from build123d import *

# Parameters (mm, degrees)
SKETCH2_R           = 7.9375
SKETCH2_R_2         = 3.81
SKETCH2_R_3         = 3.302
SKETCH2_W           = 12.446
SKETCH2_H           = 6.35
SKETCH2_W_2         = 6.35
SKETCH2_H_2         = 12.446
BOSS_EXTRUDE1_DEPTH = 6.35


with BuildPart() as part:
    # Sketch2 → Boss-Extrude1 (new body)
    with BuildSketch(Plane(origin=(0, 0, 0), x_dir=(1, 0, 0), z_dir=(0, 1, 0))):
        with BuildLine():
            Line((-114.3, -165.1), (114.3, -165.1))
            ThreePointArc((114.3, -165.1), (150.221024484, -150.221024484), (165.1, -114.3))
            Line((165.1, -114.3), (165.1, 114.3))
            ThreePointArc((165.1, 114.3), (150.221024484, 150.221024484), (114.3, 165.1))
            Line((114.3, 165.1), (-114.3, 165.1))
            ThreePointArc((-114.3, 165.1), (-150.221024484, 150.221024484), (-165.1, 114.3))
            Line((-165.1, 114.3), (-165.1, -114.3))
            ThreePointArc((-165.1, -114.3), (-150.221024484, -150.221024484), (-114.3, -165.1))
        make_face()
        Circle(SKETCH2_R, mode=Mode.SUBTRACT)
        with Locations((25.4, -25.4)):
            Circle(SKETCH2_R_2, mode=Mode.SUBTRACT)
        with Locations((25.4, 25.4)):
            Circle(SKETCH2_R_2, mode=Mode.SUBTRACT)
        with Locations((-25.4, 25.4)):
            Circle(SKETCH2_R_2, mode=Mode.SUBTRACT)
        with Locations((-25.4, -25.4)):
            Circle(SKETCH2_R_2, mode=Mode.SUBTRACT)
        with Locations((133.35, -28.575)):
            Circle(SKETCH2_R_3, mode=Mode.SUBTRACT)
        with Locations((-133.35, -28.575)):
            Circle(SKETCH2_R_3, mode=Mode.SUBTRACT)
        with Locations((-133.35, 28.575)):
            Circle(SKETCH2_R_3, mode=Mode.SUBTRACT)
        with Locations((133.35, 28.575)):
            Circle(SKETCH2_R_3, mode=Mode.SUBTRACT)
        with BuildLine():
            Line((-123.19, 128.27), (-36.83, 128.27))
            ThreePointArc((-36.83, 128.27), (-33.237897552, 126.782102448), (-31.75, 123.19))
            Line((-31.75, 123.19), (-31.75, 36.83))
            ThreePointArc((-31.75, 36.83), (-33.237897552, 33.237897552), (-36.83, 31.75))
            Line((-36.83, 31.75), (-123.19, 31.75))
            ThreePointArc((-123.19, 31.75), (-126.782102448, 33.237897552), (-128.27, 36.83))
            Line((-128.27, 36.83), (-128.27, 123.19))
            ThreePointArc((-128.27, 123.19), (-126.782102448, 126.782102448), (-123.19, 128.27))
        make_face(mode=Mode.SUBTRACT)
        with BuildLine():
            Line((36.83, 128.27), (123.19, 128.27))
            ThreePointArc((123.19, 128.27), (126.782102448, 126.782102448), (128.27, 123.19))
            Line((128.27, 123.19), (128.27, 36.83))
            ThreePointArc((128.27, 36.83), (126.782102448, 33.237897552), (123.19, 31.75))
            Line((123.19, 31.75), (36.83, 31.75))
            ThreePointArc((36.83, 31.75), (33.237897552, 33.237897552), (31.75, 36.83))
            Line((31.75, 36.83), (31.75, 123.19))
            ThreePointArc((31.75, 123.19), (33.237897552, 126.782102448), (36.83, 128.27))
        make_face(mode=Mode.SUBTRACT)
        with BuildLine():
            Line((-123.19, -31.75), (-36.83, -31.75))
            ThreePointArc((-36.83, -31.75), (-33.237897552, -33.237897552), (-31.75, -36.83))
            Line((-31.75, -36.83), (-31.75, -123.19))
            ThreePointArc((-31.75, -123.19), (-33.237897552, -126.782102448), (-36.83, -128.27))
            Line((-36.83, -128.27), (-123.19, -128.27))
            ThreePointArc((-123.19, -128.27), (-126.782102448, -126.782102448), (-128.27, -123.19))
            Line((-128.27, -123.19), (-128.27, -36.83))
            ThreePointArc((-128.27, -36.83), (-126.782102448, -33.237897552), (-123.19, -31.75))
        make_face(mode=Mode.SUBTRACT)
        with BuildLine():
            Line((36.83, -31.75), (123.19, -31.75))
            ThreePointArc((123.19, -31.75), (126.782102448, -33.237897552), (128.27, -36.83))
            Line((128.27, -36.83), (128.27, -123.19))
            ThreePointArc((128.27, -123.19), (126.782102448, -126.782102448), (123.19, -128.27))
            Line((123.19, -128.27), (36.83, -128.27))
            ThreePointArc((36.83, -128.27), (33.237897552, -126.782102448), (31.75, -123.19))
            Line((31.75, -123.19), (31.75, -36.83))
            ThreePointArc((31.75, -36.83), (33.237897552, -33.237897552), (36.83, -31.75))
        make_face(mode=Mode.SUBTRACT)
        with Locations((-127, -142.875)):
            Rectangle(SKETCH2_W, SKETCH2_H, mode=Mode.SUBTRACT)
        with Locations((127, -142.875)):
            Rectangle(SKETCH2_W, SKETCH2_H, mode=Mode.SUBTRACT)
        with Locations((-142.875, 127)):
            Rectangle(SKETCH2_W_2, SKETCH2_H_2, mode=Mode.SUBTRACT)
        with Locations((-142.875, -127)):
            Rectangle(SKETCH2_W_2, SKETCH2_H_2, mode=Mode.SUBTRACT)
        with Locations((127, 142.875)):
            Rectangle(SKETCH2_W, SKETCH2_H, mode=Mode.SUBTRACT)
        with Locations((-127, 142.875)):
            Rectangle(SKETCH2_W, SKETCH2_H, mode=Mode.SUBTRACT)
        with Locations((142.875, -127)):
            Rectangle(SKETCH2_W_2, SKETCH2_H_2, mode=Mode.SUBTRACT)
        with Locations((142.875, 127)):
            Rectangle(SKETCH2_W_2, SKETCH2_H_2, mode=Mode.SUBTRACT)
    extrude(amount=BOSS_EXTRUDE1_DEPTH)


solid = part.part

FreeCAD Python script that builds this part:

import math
import FreeCAD as App
import Part
import Sketcher
Q = App.Units.Quantity

doc = App.newDocument("Part")
body = doc.addObject("PartDesign::Body", "Body")

# Sketch on XZ plane
sketch1 = doc.addObject("Sketcher::SketchObject", "Sketch")
body.addObject(sketch1)
sketch1.AttachmentSupport = (doc.XZ_Plane, [""])
sketch1.MapMode = "FlatFace"
sketch1.addGeometry(Part.LineSegment(App.Vector(-114.3, 165.1, 0), App.Vector(114.3, 165.1, 0)), False)
sketch1.addGeometry(Part.ArcOfCircle(Part.Circle(App.Vector(114.3, 114.3, 0), App.Vector(0, 0, 1), 50.8), math.radians(0), math.radians(90)), False)
sketch1.addGeometry(Part.LineSegment(App.Vector(165.1, 114.3, 0), App.Vector(165.1, -114.3, 0)), False)
sketch1.addGeometry(Part.ArcOfCircle(Part.Circle(App.Vector(114.3, -114.3, 0), App.Vector(0, 0, 1), 50.8), math.radians(-90), math.radians(0)), False)
sketch1.addGeometry(Part.LineSegment(App.Vector(114.3, -165.1, 0), App.Vector(-114.3, -165.1, 0)), False)
sketch1.addGeometry(Part.ArcOfCircle(Part.Circle(App.Vector(-114.3, -114.3, 0), App.Vector(0, 0, 1), 50.8), math.radians(-180), math.radians(-90)), False)
sketch1.addGeometry(Part.LineSegment(App.Vector(-165.1, -114.3, 0), App.Vector(-165.1, 114.3, 0)), False)
sketch1.addGeometry(Part.ArcOfCircle(Part.Circle(App.Vector(-114.3, 114.3, 0), App.Vector(0, 0, 1), 50.8), math.radians(90), math.radians(180)), False)
sketch1.addGeometry(Part.LineSegment(App.Vector(-120.8, 146.1, 0), App.Vector(-133.2, 146.1, 0)), False)
sketch1.addGeometry(Part.LineSegment(App.Vector(-133.2, 146.1, 0), App.Vector(-133.2, 139.7, 0)), False)
sketch1.addGeometry(Part.LineSegment(App.Vector(-133.2, 139.7, 0), App.Vector(-120.8, 139.7, 0)), False)
sketch1.addGeometry(Part.LineSegment(App.Vector(-120.8, 139.7, 0), App.Vector(-120.8, 146.1, 0)), False)
sketch1.addGeometry(Part.LineSegment(App.Vector(-139.7, 133.2, 0), App.Vector(-146.1, 133.2, 0)), False)
sketch1.addGeometry(Part.LineSegment(App.Vector(-146.1, 133.2, 0), App.Vector(-146.1, 120.8, 0)), False)
sketch1.addGeometry(Part.LineSegment(App.Vector(-146.1, 120.8, 0), App.Vector(-139.7, 120.8, 0)), False)
sketch1.addGeometry(Part.LineSegment(App.Vector(-139.7, 120.8, 0), App.Vector(-139.7, 133.2, 0)), False)
sketch1.addGeometry(Part.ArcOfCircle(Part.Circle(App.Vector(-123.2, 36.8, 0), App.Vector(0, 0, 1), 5.1), math.radians(-180), math.radians(-90)), False)
sketch1.addGeometry(Part.LineSegment(App.Vector(-123.2, 31.8, 0), App.Vector(-36.8, 31.8, 0)), False)
sketch1.addGeometry(Part.ArcOfCircle(Part.Circle(App.Vector(-36.8, 36.8, 0), App.Vector(0, 0, 1), 5.1), math.radians(-90), math.radians(0)), False)
sketch1.addGeometry(Part.LineSegment(App.Vector(-31.8, 36.8, 0), App.Vector(-31.8, 123.2, 0)), False)
sketch1.addGeometry(Part.ArcOfCircle(Part.Circle(App.Vector(-36.8, 123.2, 0), App.Vector(0, 0, 1), 5.1), math.radians(0), math.radians(90)), False)
sketch1.addGeometry(Part.LineSegment(App.Vector(-36.8, 128.3, 0), App.Vector(-123.2, 128.3, 0)), False)
sketch1.addGeometry(Part.ArcOfCircle(Part.Circle(App.Vector(-123.2, 123.2, 0), App.Vector(0, 0, 1), 5.1), math.radians(90), math.radians(180)), False)
sketch1.addGeometry(Part.LineSegment(App.Vector(-128.3, 123.2, 0), App.Vector(-128.3, 36.8, 0)), False)
sketch1.addGeometry(Part.Circle(App.Vector(-133.3, 28.6, 0), App.Vector(0, 0, 1), 3.3), False)
sketch1.addGeometry(Part.Circle(App.Vector(-25.4, 25.4, 0), App.Vector(0, 0, 1), 3.8), False)
sketch1.addGeometry(Part.LineSegment(App.Vector(133.2, 146.1, 0), App.Vector(120.8, 146.1, 0)), False)
sketch1.addGeometry(Part.LineSegment(App.Vector(120.8, 146.1, 0), App.Vector(120.8, 139.7, 0)), False)
sketch1.addGeometry(Part.LineSegment(App.Vector(120.8, 139.7, 0), App.Vector(133.2, 139.7, 0)), False)
sketch1.addGeometry(Part.LineSegment(App.Vector(133.2, 139.7, 0), App.Vector(133.2, 146.1, 0)), False)
sketch1.addGeometry(Part.LineSegment(App.Vector(146.1, 133.2, 0), App.Vector(139.7, 133.2, 0)), False)
sketch1.addGeometry(Part.LineSegment(App.Vector(139.7, 133.2, 0), App.Vector(139.7, 120.8, 0)), False)
sketch1.addGeometry(Part.LineSegment(App.Vector(139.7, 120.8, 0), App.Vector(146.1, 120.8, 0)), False)
sketch1.addGeometry(Part.LineSegment(App.Vector(146.1, 120.8, 0), App.Vector(146.1, 133.2, 0)), False)
sketch1.addGeometry(Part.ArcOfCircle(Part.Circle(App.Vector(36.8, 36.8, 0), App.Vector(0, 0, 1), 5.1), math.radians(-180), math.radians(-90)), False)
sketch1.addGeometry(Part.LineSegment(App.Vector(36.8, 31.8, 0), App.Vector(123.2, 31.8, 0)), False)
sketch1.addGeometry(Part.ArcOfCircle(Part.Circle(App.Vector(123.2, 36.8, 0), App.Vector(0, 0, 1), 5.1), math.radians(-90), math.radians(0)), False)
sketch1.addGeometry(Part.LineSegment(App.Vector(128.3, 36.8, 0), App.Vector(128.3, 123.2, 0)), False)
sketch1.addGeometry(Part.ArcOfCircle(Part.Circle(App.Vector(123.2, 123.2, 0), App.Vector(0, 0, 1), 5.1), math.radians(0), math.radians(90)), False)
sketch1.addGeometry(Part.LineSegment(App.Vector(123.2, 128.3, 0), App.Vector(36.8, 128.3, 0)), False)
sketch1.addGeometry(Part.ArcOfCircle(Part.Circle(App.Vector(36.8, 123.2, 0), App.Vector(0, 0, 1), 5.1), math.radians(90), math.radians(180)), False)
sketch1.addGeometry(Part.LineSegment(App.Vector(31.8, 123.2, 0), App.Vector(31.8, 36.8, 0)), False)
sketch1.addGeometry(Part.Circle(App.Vector(25.4, 25.4, 0), App.Vector(0, 0, 1), 3.8), False)
sketch1.addGeometry(Part.Circle(App.Vector(133.3, 28.6, 0), App.Vector(0, 0, 1), 3.3), False)
sketch1.addGeometry(Part.Circle(App.Vector(-133.3, -28.6, 0), App.Vector(0, 0, 1), 3.3), False)
sketch1.addGeometry(Part.Circle(App.Vector(-25.4, -25.4, 0), App.Vector(0, 0, 1), 3.8), False)
sketch1.addGeometry(Part.ArcOfCircle(Part.Circle(App.Vector(-123.2, -123.2, 0), App.Vector(0, 0, 1), 5.1), math.radians(-180), math.radians(-90)), False)
sketch1.addGeometry(Part.LineSegment(App.Vector(-123.2, -128.3, 0), App.Vector(-36.8, -128.3, 0)), False)
sketch1.addGeometry(Part.ArcOfCircle(Part.Circle(App.Vector(-36.8, -123.2, 0), App.Vector(0, 0, 1), 5.1), math.radians(-90), math.radians(0)), False)
sketch1.addGeometry(Part.LineSegment(App.Vector(-31.8, -123.2, 0), App.Vector(-31.8, -36.8, 0)), False)
sketch1.addGeometry(Part.ArcOfCircle(Part.Circle(App.Vector(-36.8, -36.8, 0), App.Vector(0, 0, 1), 5.1), math.radians(0), math.radians(90)), False)
sketch1.addGeometry(Part.LineSegment(App.Vector(-36.8, -31.8, 0), App.Vector(-123.2, -31.8, 0)), False)
sketch1.addGeometry(Part.ArcOfCircle(Part.Circle(App.Vector(-123.2, -36.8, 0), App.Vector(0, 0, 1), 5.1), math.radians(90), math.radians(180)), False)
sketch1.addGeometry(Part.LineSegment(App.Vector(-128.3, -36.8, 0), App.Vector(-128.3, -123.2, 0)), False)
sketch1.addGeometry(Part.LineSegment(App.Vector(-139.7, -120.8, 0), App.Vector(-146.1, -120.8, 0)), False)
sketch1.addGeometry(Part.LineSegment(App.Vector(-146.1, -120.8, 0), App.Vector(-146.1, -133.2, 0)), False)
sketch1.addGeometry(Part.LineSegment(App.Vector(-146.1, -133.2, 0), App.Vector(-139.7, -133.2, 0)), False)
sketch1.addGeometry(Part.LineSegment(App.Vector(-139.7, -133.2, 0), App.Vector(-139.7, -120.8, 0)), False)
sketch1.addGeometry(Part.LineSegment(App.Vector(-120.8, -139.7, 0), App.Vector(-133.2, -139.7, 0)), False)
sketch1.addGeometry(Part.LineSegment(App.Vector(-133.2, -139.7, 0), App.Vector(-133.2, -146.1, 0)), False)
sketch1.addGeometry(Part.LineSegment(App.Vector(-133.2, -146.1, 0), App.Vector(-120.8, -146.1, 0)), False)
sketch1.addGeometry(Part.LineSegment(App.Vector(-120.8, -146.1, 0), App.Vector(-120.8, -139.7, 0)), False)
sketch1.addGeometry(Part.Circle(App.Vector(0, 0, 0), App.Vector(0, 0, 1), 7.9), False)
sketch1.addGeometry(Part.Circle(App.Vector(25.4, -25.4, 0), App.Vector(0, 0, 1), 3.8), False)
sketch1.addGeometry(Part.Circle(App.Vector(133.3, -28.6, 0), App.Vector(0, 0, 1), 3.3), False)
sketch1.addGeometry(Part.ArcOfCircle(Part.Circle(App.Vector(36.8, -123.2, 0), App.Vector(0, 0, 1), 5.1), math.radians(-180), math.radians(-90)), False)
sketch1.addGeometry(Part.LineSegment(App.Vector(36.8, -128.3, 0), App.Vector(123.2, -128.3, 0)), False)
sketch1.addGeometry(Part.ArcOfCircle(Part.Circle(App.Vector(123.2, -123.2, 0), App.Vector(0, 0, 1), 5.1), math.radians(-90), math.radians(0)), False)
sketch1.addGeometry(Part.LineSegment(App.Vector(128.3, -123.2, 0), App.Vector(128.3, -36.8, 0)), False)
sketch1.addGeometry(Part.ArcOfCircle(Part.Circle(App.Vector(123.2, -36.8, 0), App.Vector(0, 0, 1), 5.1), math.radians(0), math.radians(90)), False)
sketch1.addGeometry(Part.LineSegment(App.Vector(123.2, -31.8, 0), App.Vector(36.8, -31.8, 0)), False)
sketch1.addGeometry(Part.ArcOfCircle(Part.Circle(App.Vector(36.8, -36.8, 0), App.Vector(0, 0, 1), 5.1), math.radians(90), math.radians(180)), False)
sketch1.addGeometry(Part.LineSegment(App.Vector(31.8, -36.8, 0), App.Vector(31.8, -123.2, 0)), False)
sketch1.addGeometry(Part.LineSegment(App.Vector(146.1, -120.8, 0), App.Vector(139.7, -120.8, 0)), False)
sketch1.addGeometry(Part.LineSegment(App.Vector(139.7, -120.8, 0), App.Vector(139.7, -133.2, 0)), False)
sketch1.addGeometry(Part.LineSegment(App.Vector(139.7, -133.2, 0), App.Vector(146.1, -133.2, 0)), False)
sketch1.addGeometry(Part.LineSegment(App.Vector(146.1, -133.2, 0), App.Vector(146.1, -120.8, 0)), False)
sketch1.addGeometry(Part.LineSegment(App.Vector(133.2, -139.7, 0), App.Vector(120.8, -139.7, 0)), False)
sketch1.addGeometry(Part.LineSegment(App.Vector(120.8, -139.7, 0), App.Vector(120.8, -146.1, 0)), False)
sketch1.addGeometry(Part.LineSegment(App.Vector(120.8, -146.1, 0), App.Vector(133.2, -146.1, 0)), False)
sketch1.addGeometry(Part.LineSegment(App.Vector(133.2, -146.1, 0), App.Vector(133.2, -139.7, 0)), False)
sketch1.addConstraint(Sketcher.Constraint("Tangent", 0, 2, 1, 2))
sketch1.addConstraint(Sketcher.Constraint("Tangent", 1, 1, 2, 1))
sketch1.addConstraint(Sketcher.Constraint("Tangent", 2, 2, 3, 2))
sketch1.addConstraint(Sketcher.Constraint("Tangent", 3, 1, 4, 1))
sketch1.addConstraint(Sketcher.Constraint("Tangent", 4, 2, 5, 2))
sketch1.addConstraint(Sketcher.Constraint("Tangent", 5, 1, 6, 1))
sketch1.addConstraint(Sketcher.Constraint("Tangent", 6, 2, 7, 2))
sketch1.addConstraint(Sketcher.Constraint("Tangent", 7, 1, 0, 1))
sketch1.addConstraint(Sketcher.Constraint("Coincident", 8, 2, 9, 1))
sketch1.addConstraint(Sketcher.Constraint("Coincident", 9, 2, 10, 1))
sketch1.addConstraint(Sketcher.Constraint("Coincident", 10, 2, 11, 1))
sketch1.addConstraint(Sketcher.Constraint("Coincident", 11, 2, 8, 1))
sketch1.addConstraint(Sketcher.Constraint("Coincident", 12, 2, 13, 1))
sketch1.addConstraint(Sketcher.Constraint("Coincident", 13, 2, 14, 1))
sketch1.addConstraint(Sketcher.Constraint("Coincident", 14, 2, 15, 1))
sketch1.addConstraint(Sketcher.Constraint("Coincident", 15, 2, 12, 1))
sketch1.addConstraint(Sketcher.Constraint("Tangent", 16, 2, 17, 1))
sketch1.addConstraint(Sketcher.Constraint("Tangent", 17, 2, 18, 1))
sketch1.addConstraint(Sketcher.Constraint("Tangent", 18, 2, 19, 1))
sketch1.addConstraint(Sketcher.Constraint("Tangent", 19, 2, 20, 1))
sketch1.addConstraint(Sketcher.Constraint("Tangent", 20, 2, 21, 1))
sketch1.addConstraint(Sketcher.Constraint("Tangent", 21, 2, 22, 1))
sketch1.addConstraint(Sketcher.Constraint("Tangent", 22, 2, 23, 1))
sketch1.addConstraint(Sketcher.Constraint("Tangent", 23, 2, 16, 1))
sketch1.addConstraint(Sketcher.Constraint("Coincident", 26, 2, 27, 1))
sketch1.addConstraint(Sketcher.Constraint("Coincident", 27, 2, 28, 1))
sketch1.addConstraint(Sketcher.Constraint("Coincident", 28, 2, 29, 1))
sketch1.addConstraint(Sketcher.Constraint("Coincident", 29, 2, 26, 1))
sketch1.addConstraint(Sketcher.Constraint("Coincident", 30, 2, 31, 1))
sketch1.addConstraint(Sketcher.Constraint("Coincident", 31, 2, 32, 1))
sketch1.addConstraint(Sketcher.Constraint("Coincident", 32, 2, 33, 1))
sketch1.addConstraint(Sketcher.Constraint("Coincident", 33, 2, 30, 1))
sketch1.addConstraint(Sketcher.Constraint("Tangent", 34, 2, 35, 1))
sketch1.addConstraint(Sketcher.Constraint("Tangent", 35, 2, 36, 1))
sketch1.addConstraint(Sketcher.Constraint("Tangent", 36, 2, 37, 1))
sketch1.addConstraint(Sketcher.Constraint("Tangent", 37, 2, 38, 1))
sketch1.addConstraint(Sketcher.Constraint("Tangent", 38, 2, 39, 1))
sketch1.addConstraint(Sketcher.Constraint("Tangent", 39, 2, 40, 1))
sketch1.addConstraint(Sketcher.Constraint("Tangent", 40, 2, 41, 1))
sketch1.addConstraint(Sketcher.Constraint("Tangent", 41, 2, 34, 1))
sketch1.addConstraint(Sketcher.Constraint("Tangent", 46, 2, 47, 1))
sketch1.addConstraint(Sketcher.Constraint("Tangent", 47, 2, 48, 1))
sketch1.addConstraint(Sketcher.Constraint("Tangent", 48, 2, 49, 1))
sketch1.addConstraint(Sketcher.Constraint("Tangent", 49, 2, 50, 1))
sketch1.addConstraint(Sketcher.Constraint("Tangent", 50, 2, 51, 1))
sketch1.addConstraint(Sketcher.Constraint("Tangent", 51, 2, 52, 1))
sketch1.addConstraint(Sketcher.Constraint("Tangent", 52, 2, 53, 1))
sketch1.addConstraint(Sketcher.Constraint("Tangent", 53, 2, 46, 1))
sketch1.addConstraint(Sketcher.Constraint("Coincident", 54, 2, 55, 1))
sketch1.addConstraint(Sketcher.Constraint("Coincident", 55, 2, 56, 1))
sketch1.addConstraint(Sketcher.Constraint("Coincident", 56, 2, 57, 1))
sketch1.addConstraint(Sketcher.Constraint("Coincident", 57, 2, 54, 1))
sketch1.addConstraint(Sketcher.Constraint("Coincident", 58, 2, 59, 1))
sketch1.addConstraint(Sketcher.Constraint("Coincident", 59, 2, 60, 1))
sketch1.addConstraint(Sketcher.Constraint("Coincident", 60, 2, 61, 1))
sketch1.addConstraint(Sketcher.Constraint("Coincident", 61, 2, 58, 1))
sketch1.addConstraint(Sketcher.Constraint("Tangent", 65, 2, 66, 1))
sketch1.addConstraint(Sketcher.Constraint("Tangent", 66, 2, 67, 1))
sketch1.addConstraint(Sketcher.Constraint("Tangent", 67, 2, 68, 1))
sketch1.addConstraint(Sketcher.Constraint("Tangent", 68, 2, 69, 1))
sketch1.addConstraint(Sketcher.Constraint("Tangent", 69, 2, 70, 1))
sketch1.addConstraint(Sketcher.Constraint("Tangent", 70, 2, 71, 1))
sketch1.addConstraint(Sketcher.Constraint("Tangent", 71, 2, 72, 1))
sketch1.addConstraint(Sketcher.Constraint("Tangent", 72, 2, 65, 1))
sketch1.addConstraint(Sketcher.Constraint("Coincident", 73, 2, 74, 1))
sketch1.addConstraint(Sketcher.Constraint("Coincident", 74, 2, 75, 1))
sketch1.addConstraint(Sketcher.Constraint("Coincident", 75, 2, 76, 1))
sketch1.addConstraint(Sketcher.Constraint("Coincident", 76, 2, 73, 1))
sketch1.addConstraint(Sketcher.Constraint("Coincident", 77, 2, 78, 1))
sketch1.addConstraint(Sketcher.Constraint("Coincident", 78, 2, 79, 1))
sketch1.addConstraint(Sketcher.Constraint("Coincident", 79, 2, 80, 1))
sketch1.addConstraint(Sketcher.Constraint("Coincident", 80, 2, 77, 1))
sketch1.addConstraint(Sketcher.Constraint("Horizontal", 0))
sketch1.addConstraint(Sketcher.Constraint("Vertical", 2))
sketch1.addConstraint(Sketcher.Constraint("Horizontal", 4))
sketch1.addConstraint(Sketcher.Constraint("Vertical", 6))
sketch1.addConstraint(Sketcher.Constraint("Horizontal", 8))
sketch1.addConstraint(Sketcher.Constraint("Vertical", 9))
sketch1.addConstraint(Sketcher.Constraint("Horizontal", 10))
sketch1.addConstraint(Sketcher.Constraint("Vertical", 11))
sketch1.addConstraint(Sketcher.Constraint("Horizontal", 12))
sketch1.addConstraint(Sketcher.Constraint("Vertical", 13))
sketch1.addConstraint(Sketcher.Constraint("Horizontal", 14))
sketch1.addConstraint(Sketcher.Constraint("Vertical", 15))
sketch1.addConstraint(Sketcher.Constraint("Horizontal", 17))
sketch1.addConstraint(Sketcher.Constraint("Vertical", 19))
sketch1.addConstraint(Sketcher.Constraint("Horizontal", 21))
sketch1.addConstraint(Sketcher.Constraint("Vertical", 23))
sketch1.addConstraint(Sketcher.Constraint("Horizontal", 26))
sketch1.addConstraint(Sketcher.Constraint("Vertical", 27))
sketch1.addConstraint(Sketcher.Constraint("Horizontal", 28))
sketch1.addConstraint(Sketcher.Constraint("Vertical", 29))
sketch1.addConstraint(Sketcher.Constraint("Horizontal", 30))
sketch1.addConstraint(Sketcher.Constraint("Vertical", 31))
sketch1.addConstraint(Sketcher.Constraint("Horizontal", 32))
sketch1.addConstraint(Sketcher.Constraint("Vertical", 33))
sketch1.addConstraint(Sketcher.Constraint("Horizontal", 35))
sketch1.addConstraint(Sketcher.Constraint("Vertical", 37))
sketch1.addConstraint(Sketcher.Constraint("Horizontal", 39))
sketch1.addConstraint(Sketcher.Constraint("Vertical", 41))
sketch1.addConstraint(Sketcher.Constraint("Horizontal", 47))
sketch1.addConstraint(Sketcher.Constraint("Vertical", 49))
sketch1.addConstraint(Sketcher.Constraint("Horizontal", 51))
sketch1.addConstraint(Sketcher.Constraint("Vertical", 53))
sketch1.addConstraint(Sketcher.Constraint("Horizontal", 54))
sketch1.addConstraint(Sketcher.Constraint("Vertical", 55))
sketch1.addConstraint(Sketcher.Constraint("Horizontal", 56))
sketch1.addConstraint(Sketcher.Constraint("Vertical", 57))
sketch1.addConstraint(Sketcher.Constraint("Horizontal", 58))
sketch1.addConstraint(Sketcher.Constraint("Vertical", 59))
sketch1.addConstraint(Sketcher.Constraint("Horizontal", 60))
sketch1.addConstraint(Sketcher.Constraint("Vertical", 61))
sketch1.addConstraint(Sketcher.Constraint("Horizontal", 66))
sketch1.addConstraint(Sketcher.Constraint("Vertical", 68))
sketch1.addConstraint(Sketcher.Constraint("Horizontal", 70))
sketch1.addConstraint(Sketcher.Constraint("Vertical", 72))
sketch1.addConstraint(Sketcher.Constraint("Horizontal", 73))
sketch1.addConstraint(Sketcher.Constraint("Vertical", 74))
sketch1.addConstraint(Sketcher.Constraint("Horizontal", 75))
sketch1.addConstraint(Sketcher.Constraint("Vertical", 76))
sketch1.addConstraint(Sketcher.Constraint("Horizontal", 77))
sketch1.addConstraint(Sketcher.Constraint("Vertical", 78))
sketch1.addConstraint(Sketcher.Constraint("Horizontal", 79))
sketch1.addConstraint(Sketcher.Constraint("Vertical", 80))
sketch1.addConstraint(Sketcher.Constraint("Coincident", 62, 3, -1, 1))
sketch1.addConstraint(Sketcher.Constraint("Equal", 1, 3))
sketch1.addConstraint(Sketcher.Constraint("Equal", 3, 5))
sketch1.addConstraint(Sketcher.Constraint("Equal", 5, 7))
sketch1.addConstraint(Sketcher.Constraint("Equal", 16, 18))
sketch1.addConstraint(Sketcher.Constraint("Equal", 18, 20))
sketch1.addConstraint(Sketcher.Constraint("Equal", 20, 22))
sketch1.addConstraint(Sketcher.Constraint("Equal", 22, 34))
sketch1.addConstraint(Sketcher.Constraint("Equal", 34, 36))
sketch1.addConstraint(Sketcher.Constraint("Equal", 36, 38))
sketch1.addConstraint(Sketcher.Constraint("Equal", 38, 40))
sketch1.addConstraint(Sketcher.Constraint("Equal", 25, 42))
sketch1.addConstraint(Sketcher.Constraint("Equal", 24, 43))
sketch1.addConstraint(Sketcher.Constraint("Equal", 43, 44))
sketch1.addConstraint(Sketcher.Constraint("Equal", 42, 45))
sketch1.addConstraint(Sketcher.Constraint("Equal", 40, 46))
sketch1.addConstraint(Sketcher.Constraint("Equal", 46, 48))
sketch1.addConstraint(Sketcher.Constraint("Equal", 48, 50))
sketch1.addConstraint(Sketcher.Constraint("Equal", 50, 52))
sketch1.addConstraint(Sketcher.Constraint("Equal", 45, 63))
sketch1.addConstraint(Sketcher.Constraint("Equal", 44, 64))
sketch1.addConstraint(Sketcher.Constraint("Equal", 52, 65))
sketch1.addConstraint(Sketcher.Constraint("Equal", 65, 67))
sketch1.addConstraint(Sketcher.Constraint("Equal", 67, 69))
sketch1.addConstraint(Sketcher.Constraint("Equal", 69, 71))
sketch1.addConstraint(Sketcher.Constraint("Symmetric", 1, 3, 5, 3, -1, 1))
sketch1.addConstraint(Sketcher.Constraint("Symmetric", 43, 3, 44, 3, -1, 1))
sketch1.addConstraint(Sketcher.Constraint("Symmetric", 42, 3, 45, 3, -1, 1))
sketch1.addConstraint(Sketcher.Constraint("Symmetric", 38, 3, 46, 3, -1, 1))
sketch1.addConstraint(Sketcher.Constraint("Symmetric", 34, 3, 50, 3, -1, 1))
sketch1.addConstraint(Sketcher.Constraint("Symmetric", 25, 3, 63, 3, -1, 1))
sketch1.addConstraint(Sketcher.Constraint("Symmetric", 24, 3, 64, 3, -1, 1))
sketch1.addConstraint(Sketcher.Constraint("Symmetric", 20, 3, 65, 3, -1, 1))
sketch1.addConstraint(Sketcher.Constraint("Symmetric", 16, 3, 69, 3, -1, 1))
sketch1.addConstraint(Sketcher.Constraint("Symmetric", 32, 2, 54, 2, -1, 1))
sketch1.addConstraint(Sketcher.Constraint("Symmetric", 30, 2, 56, 2, -1, 1))
sketch1.addConstraint(Sketcher.Constraint("Symmetric", 28, 2, 58, 2, -1, 1))
sketch1.addConstraint(Sketcher.Constraint("Symmetric", 26, 2, 60, 2, -1, 1))
sketch1.addConstraint(Sketcher.Constraint("Symmetric", 14, 2, 73, 2, -1, 1))
sketch1.addConstraint(Sketcher.Constraint("Symmetric", 12, 2, 75, 2, -1, 1))
sketch1.addConstraint(Sketcher.Constraint("Symmetric", 10, 2, 77, 2, -1, 1))
sketch1.addConstraint(Sketcher.Constraint("Symmetric", 8, 2, 79, 2, -1, 1))
sketch1.addConstraint(Sketcher.Constraint("Symmetric", 18, 3, 34, 3, -2))
sketch1.addConstraint(Sketcher.Constraint("Symmetric", 22, 3, 38, 3, -2))
sketch1.addConstraint(Sketcher.Constraint("Symmetric", 25, 3, 42, 3, -2))
sketch1.addConstraint(Sketcher.Constraint("Symmetric", 24, 3, 43, 3, -2))
sketch1.addConstraint(Sketcher.Constraint("Symmetric", 11, 2, 26, 2, -2))
sketch1.addConstraint(Sketcher.Constraint("Symmetric", 9, 2, 28, 2, -2))
sketch1.addConstraint(Sketcher.Constraint("Symmetric", 15, 2, 30, 2, -2))
sketch1.addConstraint(Sketcher.Constraint("Symmetric", 13, 2, 32, 2, -2))
sketch1.addConstraint(Sketcher.Constraint("Equal", 4, 2))
sketch1.addConstraint(Sketcher.Constraint("Equal", 75, 9))
sketch1.addConstraint(Sketcher.Constraint("Equal", 79, 13))
sketch1.addConstraint(Sketcher.Constraint("Equal", 70, 19))
sketch1.addConstraint(Sketcher.Constraint("Radius", 1, Q("2 in")))
sketch1.addConstraint(Sketcher.Constraint("Diameter", 25, Q("0.3 in")))
sketch1.addConstraint(Sketcher.Constraint("Radius", 16, Q("0.2 in")))
sketch1.addConstraint(Sketcher.Constraint("Diameter", 24, Q("0.26 in")))
sketch1.addConstraint(Sketcher.Constraint("DistanceX", 0, 1, 0, 2, Q("9 in")))
sketch1.addConstraint(Sketcher.Constraint("Diameter", 62, Q("0.625 in")))
sketch1.addConstraint(Sketcher.Constraint("DistanceX", 17, 1, 17, 2, Q("3.4 in")))
sketch1.addConstraint(Sketcher.Constraint("DistanceX", 25, 3, -1, 1, Q("1 in")))
sketch1.addConstraint(Sketcher.Constraint("DistanceY", -1, 1, 25, 3, Q("1 in")))
sketch1.addConstraint(Sketcher.Constraint("DistanceX", 8, 2, 8, 1, Q("0.49 in")))
sketch1.addConstraint(Sketcher.Constraint("DistanceX", 12, 2, 12, 1, Q("0.25 in")))
sketch1.addConstraint(Sketcher.Constraint("DistanceY", -1, 1, 9, 2, Q("5.5 in")))
sketch1.addConstraint(Sketcher.Constraint("DistanceX", 14, 2, -1, 1, Q("5.5 in")))
sketch1.addConstraint(Sketcher.Constraint("DistanceX", 16, 3, -1, 1, Q("4.85 in")))
sketch1.addConstraint(Sketcher.Constraint("DistanceY", -1, 1, 16, 3, Q("1.45 in")))
sketch1.addConstraint(Sketcher.Constraint("DistanceX", 24, 3, -1, 1, Q("5.25 in")))
sketch1.addConstraint(Sketcher.Constraint("DistanceY", -1, 1, 24, 3, Q("1.125 in")))
sketch1.addConstraint(Sketcher.Constraint("DistanceX", 8, 2, -1, 1, Q("5.245 in")))
sketch1.addConstraint(Sketcher.Constraint("DistanceY", -1, 1, 12, 2, Q("5.245 in")))
pad1 = doc.addObject("PartDesign::Pad", "Pad")
body.addObject(pad1)
pad1.Profile = sketch1
pad1.Length = Q("0.25 in")
pad1.Reversed = True

doc.recompute()
